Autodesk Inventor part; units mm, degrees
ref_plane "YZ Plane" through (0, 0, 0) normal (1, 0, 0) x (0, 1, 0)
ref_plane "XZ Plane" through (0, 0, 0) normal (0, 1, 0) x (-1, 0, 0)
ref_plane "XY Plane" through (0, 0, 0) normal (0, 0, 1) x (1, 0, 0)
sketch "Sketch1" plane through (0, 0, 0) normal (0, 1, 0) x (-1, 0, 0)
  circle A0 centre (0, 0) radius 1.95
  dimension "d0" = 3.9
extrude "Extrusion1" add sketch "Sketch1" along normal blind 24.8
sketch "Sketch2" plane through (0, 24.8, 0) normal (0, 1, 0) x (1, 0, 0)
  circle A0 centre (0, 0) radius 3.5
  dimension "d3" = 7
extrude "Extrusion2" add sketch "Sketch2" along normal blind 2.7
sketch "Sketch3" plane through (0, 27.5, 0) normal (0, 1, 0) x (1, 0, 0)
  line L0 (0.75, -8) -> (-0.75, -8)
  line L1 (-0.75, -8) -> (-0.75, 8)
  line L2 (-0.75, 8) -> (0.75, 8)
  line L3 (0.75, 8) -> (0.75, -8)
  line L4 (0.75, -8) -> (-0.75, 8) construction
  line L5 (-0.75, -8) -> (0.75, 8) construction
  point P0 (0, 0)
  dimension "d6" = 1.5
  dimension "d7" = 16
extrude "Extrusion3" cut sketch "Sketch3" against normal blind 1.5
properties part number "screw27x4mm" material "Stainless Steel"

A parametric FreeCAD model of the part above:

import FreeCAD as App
import Part
import Sketcher
from FreeCAD import Vector


def add_polygon(sketch, points):
    """Adds a closed chain of lines whose ends are joined by coincident constraints."""
    first, n = sketch.GeometryCount, len(points)
    for a, b in zip(points, points[1:] + points[:1]):
        sketch.addGeometry(Part.LineSegment(App.Vector(*a, 0), App.Vector(*b, 0)), False)
    for i in range(n):
        sketch.addConstraint(Sketcher.Constraint("Coincident", first + i, 2, first + (i + 1) % n, 1))

doc = App.newDocument("Part")
body = doc.addObject("PartDesign::Body", "Body")

sketch1 = body.newObject("Sketcher::SketchObject", "Sketch")
sketch1.AttachmentSupport = (doc.getObject("XZ_Plane"), [""])
sketch1.MapMode = "FlatFace"
sketch1.addGeometry(Part.Circle(Vector(0, 0, 0), Vector(0, 0, 1), 1.9), False)
sketch1.addConstraint([
    Sketcher.Constraint("Coincident", 0, 3, -1, 1),
    Sketcher.Constraint("Diameter", 0, 3.9),
])
pad1 = body.newObject("PartDesign::Pad", "Pad")
pad1.Profile = sketch1
pad1.Length = 24.8
pad1.Reversed = True

sketch2 = body.newObject("Sketcher::SketchObject", "Sketch001")
sketch2.AttachmentSupport = (doc.getObject("XZ_Plane"), [""])
sketch2.MapMode = "FlatFace"
sketch2.AttachmentOffset = App.Placement(Vector(0, 0, -24.8), App.Rotation())
sketch2.addGeometry(Part.Circle(Vector(0, 0, 0), Vector(0, 0, 1), 3.5), False)
sketch2.addConstraint([
    Sketcher.Constraint("Coincident", 0, 3, -1, 1),
    Sketcher.Constraint("Diameter", 0, 7.0),
])
pad2 = body.newObject("PartDesign::Pad", "Pad001")
pad2.Profile = sketch2
pad2.Length = 2.7
pad2.Reversed = True

sketch3 = body.newObject("Sketcher::SketchObject", "Sketch002")
sketch3.AttachmentSupport = (doc.getObject("XZ_Plane"), [""])
sketch3.MapMode = "FlatFace"
sketch3.AttachmentOffset = App.Placement(Vector(0, 0, -27.5), App.Rotation())
add_polygon(sketch3, [(-0.8, 8), (0.8, 8), (0.8, -8), (-0.8, -8)])
sketch3.addConstraint([
    Sketcher.Constraint("Horizontal", 0),
    Sketcher.Constraint("Vertical", 1),
    Sketcher.Constraint("Horizontal", 2),
    Sketcher.Constraint("Vertical", 3),
    Sketcher.Constraint("Symmetric", 0, 2, 2, 2, -1, 1),
    Sketcher.Constraint("DistanceY", 1, 2, 1, 1, 16.0),
    Sketcher.Constraint("DistanceX", 0, 1, 0, 2, 1.5),
])
pocket1 = body.newObject("PartDesign::Pocket", "Pocket")
pocket1.Profile = sketch3
pocket1.Length = 1.5
pocket1.Reversed = True

doc.recompute()
